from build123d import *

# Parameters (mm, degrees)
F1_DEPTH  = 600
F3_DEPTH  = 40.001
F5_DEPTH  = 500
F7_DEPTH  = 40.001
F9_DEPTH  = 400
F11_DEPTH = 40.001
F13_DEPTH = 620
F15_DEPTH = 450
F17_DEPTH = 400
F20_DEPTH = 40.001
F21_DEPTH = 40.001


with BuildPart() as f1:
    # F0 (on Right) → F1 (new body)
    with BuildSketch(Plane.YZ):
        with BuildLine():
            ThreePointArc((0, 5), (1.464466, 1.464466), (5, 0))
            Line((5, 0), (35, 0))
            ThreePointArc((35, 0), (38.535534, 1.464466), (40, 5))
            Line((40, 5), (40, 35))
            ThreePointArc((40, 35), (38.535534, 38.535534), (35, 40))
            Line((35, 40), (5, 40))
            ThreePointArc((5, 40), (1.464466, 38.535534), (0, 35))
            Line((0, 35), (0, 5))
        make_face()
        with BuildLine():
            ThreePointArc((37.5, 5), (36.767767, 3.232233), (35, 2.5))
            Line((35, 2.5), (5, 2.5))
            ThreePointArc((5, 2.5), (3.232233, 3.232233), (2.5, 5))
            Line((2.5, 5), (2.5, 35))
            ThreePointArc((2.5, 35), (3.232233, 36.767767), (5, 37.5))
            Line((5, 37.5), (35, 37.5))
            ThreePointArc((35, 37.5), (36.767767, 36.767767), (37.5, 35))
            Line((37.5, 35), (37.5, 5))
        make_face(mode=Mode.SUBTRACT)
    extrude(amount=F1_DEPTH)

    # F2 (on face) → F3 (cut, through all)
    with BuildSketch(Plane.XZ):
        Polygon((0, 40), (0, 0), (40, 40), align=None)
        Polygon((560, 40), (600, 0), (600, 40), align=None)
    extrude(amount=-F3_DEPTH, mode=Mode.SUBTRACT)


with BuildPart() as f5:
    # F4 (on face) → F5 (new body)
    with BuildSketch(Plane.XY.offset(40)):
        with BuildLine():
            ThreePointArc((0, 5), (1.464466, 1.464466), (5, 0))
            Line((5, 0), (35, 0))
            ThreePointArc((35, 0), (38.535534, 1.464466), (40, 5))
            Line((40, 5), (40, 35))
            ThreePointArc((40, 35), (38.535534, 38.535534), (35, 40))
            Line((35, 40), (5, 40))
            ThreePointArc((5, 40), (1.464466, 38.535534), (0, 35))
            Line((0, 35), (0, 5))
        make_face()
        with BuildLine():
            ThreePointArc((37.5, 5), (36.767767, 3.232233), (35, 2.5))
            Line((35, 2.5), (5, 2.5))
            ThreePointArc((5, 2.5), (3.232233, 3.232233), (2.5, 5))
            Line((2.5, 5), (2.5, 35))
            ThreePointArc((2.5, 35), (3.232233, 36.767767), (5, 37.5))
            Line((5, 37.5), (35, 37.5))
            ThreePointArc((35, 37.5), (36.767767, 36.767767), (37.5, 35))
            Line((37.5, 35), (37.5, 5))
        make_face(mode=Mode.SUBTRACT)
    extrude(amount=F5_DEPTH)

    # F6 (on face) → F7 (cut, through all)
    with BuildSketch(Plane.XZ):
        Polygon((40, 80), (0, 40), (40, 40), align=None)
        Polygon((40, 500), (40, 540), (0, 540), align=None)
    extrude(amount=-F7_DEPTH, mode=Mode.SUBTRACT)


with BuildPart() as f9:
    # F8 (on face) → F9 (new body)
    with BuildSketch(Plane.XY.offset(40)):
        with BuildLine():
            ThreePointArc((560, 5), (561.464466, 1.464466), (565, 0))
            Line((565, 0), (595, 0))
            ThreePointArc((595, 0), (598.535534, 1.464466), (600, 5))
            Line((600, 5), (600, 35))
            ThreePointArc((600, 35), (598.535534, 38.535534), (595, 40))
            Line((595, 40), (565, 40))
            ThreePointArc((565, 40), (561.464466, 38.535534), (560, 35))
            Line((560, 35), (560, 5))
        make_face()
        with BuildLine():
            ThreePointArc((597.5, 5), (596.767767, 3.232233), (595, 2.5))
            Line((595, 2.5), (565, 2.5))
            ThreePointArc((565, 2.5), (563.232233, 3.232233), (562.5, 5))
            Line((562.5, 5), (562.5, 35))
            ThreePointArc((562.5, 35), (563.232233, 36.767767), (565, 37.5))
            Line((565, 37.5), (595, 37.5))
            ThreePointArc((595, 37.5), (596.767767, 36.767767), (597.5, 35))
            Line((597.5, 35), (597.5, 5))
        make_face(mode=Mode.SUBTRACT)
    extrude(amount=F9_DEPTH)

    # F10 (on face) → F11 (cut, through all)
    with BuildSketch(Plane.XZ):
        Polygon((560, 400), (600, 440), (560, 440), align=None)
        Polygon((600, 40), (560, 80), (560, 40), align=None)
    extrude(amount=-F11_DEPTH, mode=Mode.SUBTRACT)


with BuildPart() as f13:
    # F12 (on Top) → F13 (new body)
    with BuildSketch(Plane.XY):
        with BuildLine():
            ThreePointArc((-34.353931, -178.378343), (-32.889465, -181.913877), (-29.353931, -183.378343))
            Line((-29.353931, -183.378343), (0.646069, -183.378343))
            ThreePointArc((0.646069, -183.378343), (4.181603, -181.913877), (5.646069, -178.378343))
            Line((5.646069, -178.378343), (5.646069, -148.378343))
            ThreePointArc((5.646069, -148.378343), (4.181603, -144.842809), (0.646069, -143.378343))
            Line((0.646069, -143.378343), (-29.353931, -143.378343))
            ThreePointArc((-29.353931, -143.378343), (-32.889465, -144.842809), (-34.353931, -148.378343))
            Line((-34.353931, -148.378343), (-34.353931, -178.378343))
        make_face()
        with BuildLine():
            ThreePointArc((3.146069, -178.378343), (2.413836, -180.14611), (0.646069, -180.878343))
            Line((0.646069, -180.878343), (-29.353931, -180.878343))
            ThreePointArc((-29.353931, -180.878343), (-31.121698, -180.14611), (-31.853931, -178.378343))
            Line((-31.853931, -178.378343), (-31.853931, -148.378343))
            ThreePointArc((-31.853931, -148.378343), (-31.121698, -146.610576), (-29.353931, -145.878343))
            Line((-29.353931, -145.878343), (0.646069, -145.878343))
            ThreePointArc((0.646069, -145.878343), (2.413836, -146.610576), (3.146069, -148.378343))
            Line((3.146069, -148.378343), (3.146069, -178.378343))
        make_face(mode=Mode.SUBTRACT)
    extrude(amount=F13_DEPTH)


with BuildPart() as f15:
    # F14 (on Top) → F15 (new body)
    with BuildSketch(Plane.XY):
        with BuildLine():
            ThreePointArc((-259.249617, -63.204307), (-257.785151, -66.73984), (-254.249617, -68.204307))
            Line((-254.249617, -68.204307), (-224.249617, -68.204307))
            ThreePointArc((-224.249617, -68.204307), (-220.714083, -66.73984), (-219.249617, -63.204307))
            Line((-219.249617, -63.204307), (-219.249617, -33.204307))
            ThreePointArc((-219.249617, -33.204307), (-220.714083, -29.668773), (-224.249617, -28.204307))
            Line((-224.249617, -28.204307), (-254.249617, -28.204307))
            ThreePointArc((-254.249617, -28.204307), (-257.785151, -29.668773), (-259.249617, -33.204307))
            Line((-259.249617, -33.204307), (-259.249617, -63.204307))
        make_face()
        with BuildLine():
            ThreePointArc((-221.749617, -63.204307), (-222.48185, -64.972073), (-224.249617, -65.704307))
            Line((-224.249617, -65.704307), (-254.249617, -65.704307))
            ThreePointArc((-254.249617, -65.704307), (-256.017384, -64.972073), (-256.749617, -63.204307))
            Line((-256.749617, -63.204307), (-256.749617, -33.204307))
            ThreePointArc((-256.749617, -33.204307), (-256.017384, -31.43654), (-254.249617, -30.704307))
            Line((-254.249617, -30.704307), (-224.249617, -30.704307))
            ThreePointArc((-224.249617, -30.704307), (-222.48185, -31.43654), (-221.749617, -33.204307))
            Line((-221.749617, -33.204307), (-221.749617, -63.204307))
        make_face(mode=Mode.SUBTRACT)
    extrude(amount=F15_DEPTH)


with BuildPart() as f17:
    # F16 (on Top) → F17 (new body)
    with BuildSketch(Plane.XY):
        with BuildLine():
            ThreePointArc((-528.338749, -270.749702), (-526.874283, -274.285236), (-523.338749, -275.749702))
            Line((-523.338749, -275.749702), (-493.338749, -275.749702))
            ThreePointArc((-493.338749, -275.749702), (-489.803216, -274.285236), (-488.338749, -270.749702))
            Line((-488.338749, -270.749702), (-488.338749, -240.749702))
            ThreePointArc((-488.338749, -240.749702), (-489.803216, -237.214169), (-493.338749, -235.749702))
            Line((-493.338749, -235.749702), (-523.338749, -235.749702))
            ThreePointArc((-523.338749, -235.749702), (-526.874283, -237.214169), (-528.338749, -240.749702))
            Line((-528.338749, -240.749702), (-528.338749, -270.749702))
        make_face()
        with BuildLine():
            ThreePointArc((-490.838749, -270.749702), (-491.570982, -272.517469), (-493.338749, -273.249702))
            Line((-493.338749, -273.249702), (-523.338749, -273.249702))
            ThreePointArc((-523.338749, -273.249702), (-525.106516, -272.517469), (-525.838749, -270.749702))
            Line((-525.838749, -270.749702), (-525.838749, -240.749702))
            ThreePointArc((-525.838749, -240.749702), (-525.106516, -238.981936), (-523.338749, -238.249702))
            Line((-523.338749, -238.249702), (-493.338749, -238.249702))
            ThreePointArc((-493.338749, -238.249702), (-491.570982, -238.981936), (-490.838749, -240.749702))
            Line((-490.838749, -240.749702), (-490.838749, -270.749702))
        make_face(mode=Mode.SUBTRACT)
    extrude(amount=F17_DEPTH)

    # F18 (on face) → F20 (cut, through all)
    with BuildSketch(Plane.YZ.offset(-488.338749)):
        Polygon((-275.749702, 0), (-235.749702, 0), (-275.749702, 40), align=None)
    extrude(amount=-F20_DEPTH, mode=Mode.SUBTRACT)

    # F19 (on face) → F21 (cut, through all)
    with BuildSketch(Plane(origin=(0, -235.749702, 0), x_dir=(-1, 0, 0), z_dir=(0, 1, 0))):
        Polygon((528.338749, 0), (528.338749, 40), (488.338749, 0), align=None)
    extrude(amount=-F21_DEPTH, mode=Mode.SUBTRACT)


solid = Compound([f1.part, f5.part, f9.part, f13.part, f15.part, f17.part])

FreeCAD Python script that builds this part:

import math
import FreeCAD as App
import Part
import Sketcher
from FreeCAD import Vector


def add_polygon(sketch, points):
    """Adds a closed chain of lines whose ends are joined by coincident constraints."""
    first, n = sketch.GeometryCount, len(points)
    for a, b in zip(points, points[1:] + points[:1]):
        sketch.addGeometry(Part.LineSegment(App.Vector(*a, 0), App.Vector(*b, 0)), False)
    for i in range(n):
        sketch.addConstraint(Sketcher.Constraint("Coincident", first + i, 2, first + (i + 1) % n, 1))

doc = App.newDocument("Part")
body = doc.addObject("PartDesign::Body", "Body")

# Sketch on YZ plane
sketch1 = doc.addObject("Sketcher::SketchObject", "Sketch")
body.addObject(sketch1)
sketch1.AttachmentSupport = (doc.YZ_Plane, [""])
sketch1.MapMode = "FlatFace"
sketch1.addGeometry(Part.ArcOfCircle(Part.Circle(Vector(5, 5, 0), Vector(0, 0, 1), 5), math.radians(179.999996), math.radians(270.000004)), False)
sketch1.addGeometry(Part.LineSegment(Vector(5, 0, 0), Vector(35, 0, 0)), False)
sketch1.addGeometry(Part.ArcOfCircle(Part.Circle(Vector(35, 5, 0), Vector(0, 0, 1), 5), math.radians(-90.000004), math.radians(0.000004)), False)
sketch1.addGeometry(Part.LineSegment(Vector(40, 5, 0), Vector(40, 35, 0)), False)
sketch1.addGeometry(Part.ArcOfCircle(Part.Circle(Vector(35, 35, 0), Vector(0, 0, 1), 5), math.radians(-0.000004), math.radians(90.000004)), False)
sketch1.addGeometry(Part.LineSegment(Vector(35, 40, 0), Vector(5, 40, 0)), False)
sketch1.addGeometry(Part.ArcOfCircle(Part.Circle(Vector(5, 35, 0), Vector(0, 0, 1), 5), math.radians(89.999996), math.radians(180.000004)), False)
sketch1.addGeometry(Part.LineSegment(Vector(0, 35, 0), Vector(0, 5, 0)), False)
sketch1.addGeometry(Part.LineSegment(Vector(37.5, 35, 0), Vector(37.5, 5, 0)), False)
sketch1.addGeometry(Part.ArcOfCircle(Part.Circle(Vector(35, 5, 0), Vector(0, 0, 1), 2.5), math.radians(-90.000004), math.radians(0.000004)), False)
sketch1.addGeometry(Part.LineSegment(Vector(35, 2.5, 0), Vector(5, 2.5, 0)), False)
sketch1.addGeometry(Part.ArcOfCircle(Part.Circle(Vector(5, 5, 0), Vector(0, 0, 1), 2.5), math.radians(179.999996), math.radians(270.000004)), False)
sketch1.addGeometry(Part.LineSegment(Vector(2.5, 5, 0), Vector(2.5, 35, 0)), False)
sketch1.addGeometry(Part.ArcOfCircle(Part.Circle(Vector(5, 35, 0), Vector(0, 0, 1), 2.5), math.radians(89.999996), math.radians(180.000004)), False)
sketch1.addGeometry(Part.LineSegment(Vector(5, 37.5, 0), Vector(35, 37.5, 0)), False)
sketch1.addGeometry(Part.ArcOfCircle(Part.Circle(Vector(35, 35, 0), Vector(0, 0, 1), 2.5), math.radians(-0.000004), math.radians(90.000004)), False)
sketch1.addConstraint(Sketcher.Constraint("Tangent", 0, 2, 1, 1))
sketch1.addConstraint(Sketcher.Constraint("Tangent", 1, 2, 2, 1))
sketch1.addConstraint(Sketcher.Constraint("Tangent", 2, 2, 3, 1))
sketch1.addConstraint(Sketcher.Constraint("Tangent", 3, 2, 4, 1))
sketch1.addConstraint(Sketcher.Constraint("Tangent", 4, 2, 5, 1))
sketch1.addConstraint(Sketcher.Constraint("Tangent", 5, 2, 6, 1))
sketch1.addConstraint(Sketcher.Constraint("Tangent", 6, 2, 7, 1))
sketch1.addConstraint(Sketcher.Constraint("Tangent", 7, 2, 0, 1))
sketch1.addConstraint(Sketcher.Constraint("Tangent", 8, 2, 9, 2))
sketch1.addConstraint(Sketcher.Constraint("Tangent", 9, 1, 10, 1))
sketch1.addConstraint(Sketcher.Constraint("Tangent", 10, 2, 11, 2))
sketch1.addConstraint(Sketcher.Constraint("Tangent", 11, 1, 12, 1))
sketch1.addConstraint(Sketcher.Constraint("Tangent", 12, 2, 13, 2))
sketch1.addConstraint(Sketcher.Constraint("Tangent", 13, 1, 14, 1))
sketch1.addConstraint(Sketcher.Constraint("Tangent", 14, 2, 15, 2))
sketch1.addConstraint(Sketcher.Constraint("Tangent", 15, 1, 8, 1))
sketch1.addConstraint(Sketcher.Constraint("Horizontal", 1))
sketch1.addConstraint(Sketcher.Constraint("Vertical", 3))
sketch1.addConstraint(Sketcher.Constraint("Horizontal", 5))
sketch1.addConstraint(Sketcher.Constraint("Vertical", 7))
sketch1.addConstraint(Sketcher.Constraint("Vertical", 8))
sketch1.addConstraint(Sketcher.Constraint("Horizontal", 10))
sketch1.addConstraint(Sketcher.Constraint("Vertical", 12))
sketch1.addConstraint(Sketcher.Constraint("Horizontal", 14))
sketch1.addConstraint(Sketcher.Constraint("Coincident", 9, 3, 2, 3))
sketch1.addConstraint(Sketcher.Constraint("Coincident", 11, 3, 0, 3))
sketch1.addConstraint(Sketcher.Constraint("Coincident", 13, 3, 6, 3))
sketch1.addConstraint(Sketcher.Constraint("Equal", 0, 2))
sketch1.addConstraint(Sketcher.Constraint("Equal", 2, 4))
sketch1.addConstraint(Sketcher.Constraint("Equal", 4, 6))
sketch1.addConstraint(Sketcher.Constraint("Equal", 13, 15))
sketch1.addConstraint(Sketcher.Constraint("PointOnObject", 0, 2, -1))
sketch1.addConstraint(Sketcher.Constraint("PointOnObject", 6, 2, -2))
sketch1.addConstraint(Sketcher.Constraint("Equal", 14, 3))
sketch1.addConstraint(Sketcher.Constraint("Radius", 0, 5.0))
sketch1.addConstraint(Sketcher.Constraint("Radius", 9, 2.5))
sketch1.addConstraint(Sketcher.Constraint("DistanceX", 1, 1, 1, 2, 30.0))
pad1 = doc.addObject("PartDesign::Pad", "Pad")
body.addObject(pad1)
pad1.Profile = sketch1
pad1.Length = 600

# Sketch on XZ plane
sketch2 = doc.addObject("Sketcher::SketchObject", "Sketch001")
body.addObject(sketch2)
sketch2.AttachmentSupport = (doc.XZ_Plane, [""])
sketch2.MapMode = "FlatFace"
add_polygon(sketch2, [(0, 40), (0, 0), (40, 40)])  # lines 0-2
add_polygon(sketch2, [(560, 40), (600, 0), (600, 40)])  # lines 3-5
sketch2.addConstraint(Sketcher.Constraint("Vertical", 0))
sketch2.addConstraint(Sketcher.Constraint("Horizontal", 2))
sketch2.addConstraint(Sketcher.Constraint("Vertical", 4))
sketch2.addConstraint(Sketcher.Constraint("Horizontal", 5))
sketch2.addConstraint(Sketcher.Constraint("Coincident", 0, 2, -1, 1))
sketch2.addConstraint(Sketcher.Constraint("PointOnObject", 3, 2, -1))
sketch2.addConstraint(Sketcher.Constraint("Perpendicular", 1, 3))
sketch2.addConstraint(Sketcher.Constraint("Horizontal", 2, 2, 4, 2))
sketch2.addConstraint(Sketcher.Constraint("Equal", 2, 5))
sketch2.addConstraint(Sketcher.Constraint("DistanceX", 2, 2, 2, 1, 40.0))
sketch2.addConstraint(Sketcher.Constraint("DistanceX", -1, 1, 3, 2, 600.0))
pocket1 = doc.addObject("PartDesign::Pocket", "Pocket")
body.addObject(pocket1)
pocket1.Profile = sketch2
pocket1.Type = "ThroughAll"
body2 = doc.addObject("PartDesign::Body", "Body001")

# Sketch on XY plane
sketch3 = doc.addObject("Sketcher::SketchObject", "Sketch002")
body2.addObject(sketch3)
sketch3.AttachmentSupport = (doc.getObject("XY_Plane001"), [""])
sketch3.MapMode = "FlatFace"
sketch3.AttachmentOffset = App.Placement(Vector(0, 0, 40), App.Rotation())
sketch3.addGeometry(Part.ArcOfCircle(Part.Circle(Vector(5, 5, 0), Vector(0, 0, 1), 5), math.radians(179.999996), math.radians(270.000004)), False)
sketch3.addGeometry(Part.LineSegment(Vector(5, 0, 0), Vector(35, 0, 0)), False)
sketch3.addGeometry(Part.ArcOfCircle(Part.Circle(Vector(35, 5, 0), Vector(0, 0, 1), 5), math.radians(-90.000004), math.radians(0.000004)), False)
sketch3.addGeometry(Part.LineSegment(Vector(40, 5, 0), Vector(40, 35, 0)), False)
sketch3.addGeometry(Part.ArcOfCircle(Part.Circle(Vector(35, 35, 0), Vector(0, 0, 1), 5), math.radians(-0.000004), math.radians(90.000004)), False)
sketch3.addGeometry(Part.LineSegment(Vector(35, 40, 0), Vector(5, 40, 0)), False)
sketch3.addGeometry(Part.ArcOfCircle(Part.Circle(Vector(5, 35, 0), Vector(0, 0, 1), 5), math.radians(89.999996), math.radians(180.000004)), False)
sketch3.addGeometry(Part.LineSegment(Vector(0, 35, 0), Vector(0, 5, 0)), False)
sketch3.addGeometry(Part.LineSegment(Vector(37.5, 35, 0), Vector(37.5, 5, 0)), False)
sketch3.addGeometry(Part.ArcOfCircle(Part.Circle(Vector(35, 5, 0), Vector(0, 0, 1), 2.5), math.radians(-90.000004), math.radians(0.000004)), False)
sketch3.addGeometry(Part.LineSegment(Vector(35, 2.5, 0), Vector(5, 2.5, 0)), False)
sketch3.addGeometry(Part.ArcOfCircle(Part.Circle(Vector(5, 5, 0), Vector(0, 0, 1), 2.5), math.radians(179.999996), math.radians(270.000004)), False)
sketch3.addGeometry(Part.LineSegment(Vector(2.5, 5, 0), Vector(2.5, 35, 0)), False)
sketch3.addGeometry(Part.ArcOfCircle(Part.Circle(Vector(5, 35, 0), Vector(0, 0, 1), 2.5), math.radians(89.999996), math.radians(180.000004)), False)
sketch3.addGeometry(Part.LineSegment(Vector(5, 37.5, 0), Vector(35, 37.5, 0)), False)
sketch3.addGeometry(Part.ArcOfCircle(Part.Circle(Vector(35, 35, 0), Vector(0, 0, 1), 2.5), math.radians(-0.000004), math.radians(90.000004)), False)
sketch3.addConstraint(Sketcher.Constraint("Tangent", 0, 2, 1, 1))
sketch3.addConstraint(Sketcher.Constraint("Tangent", 1, 2, 2, 1))
sketch3.addConstraint(Sketcher.Constraint("Tangent", 2, 2, 3, 1))
sketch3.addConstraint(Sketcher.Constraint("Tangent", 3, 2, 4, 1))
sketch3.addConstraint(Sketcher.Constraint("Tangent", 4, 2, 5, 1))
sketch3.addConstraint(Sketcher.Constraint("Tangent", 5, 2, 6, 1))
sketch3.addConstraint(Sketcher.Constraint("Tangent", 6, 2, 7, 1))
sketch3.addConstraint(Sketcher.Constraint("Tangent", 7, 2, 0, 1))
sketch3.addConstraint(Sketcher.Constraint("Tangent", 8, 2, 9, 2))
sketch3.addConstraint(Sketcher.Constraint("Tangent", 9, 1, 10, 1))
sketch3.addConstraint(Sketcher.Constraint("Tangent", 10, 2, 11, 2))
sketch3.addConstraint(Sketcher.Constraint("Tangent", 11, 1, 12, 1))
sketch3.addConstraint(Sketcher.Constraint("Tangent", 12, 2, 13, 2))
sketch3.addConstraint(Sketcher.Constraint("Tangent", 13, 1, 14, 1))
sketch3.addConstraint(Sketcher.Constraint("Tangent", 14, 2, 15, 2))
sketch3.addConstraint(Sketcher.Constraint("Tangent", 15, 1, 8, 1))
sketch3.addConstraint(Sketcher.Constraint("Horizontal", 1))
sketch3.addConstraint(Sketcher.Constraint("Vertical", 3))
sketch3.addConstraint(Sketcher.Constraint("Horizontal", 5))
sketch3.addConstraint(Sketcher.Constraint("Vertical", 7))
sketch3.addConstraint(Sketcher.Constraint("Vertical", 8))
sketch3.addConstraint(Sketcher.Constraint("Horizontal", 10))
sketch3.addConstraint(Sketcher.Constraint("Vertical", 12))
sketch3.addConstraint(Sketcher.Constraint("Horizontal", 14))
sketch3.addConstraint(Sketcher.Constraint("Coincident", 9, 3, 2, 3))
sketch3.addConstraint(Sketcher.Constraint("Coincident", 11, 3, 0, 3))
sketch3.addConstraint(Sketcher.Constraint("Coincident", 13, 3, 6, 3))
sketch3.addConstraint(Sketcher.Constraint("Equal", 0, 2))
sketch3.addConstraint(Sketcher.Constraint("Equal", 2, 4))
sketch3.addConstraint(Sketcher.Constraint("Equal", 4, 6))
sketch3.addConstraint(Sketcher.Constraint("Equal", 13, 15))
sketch3.addConstraint(Sketcher.Constraint("PointOnObject", 0, 2, -1))
sketch3.addConstraint(Sketcher.Constraint("PointOnObject", 6, 2, -2))
sketch3.addConstraint(Sketcher.Constraint("Equal", 14, 3))
sketch3.addConstraint(Sketcher.Constraint("Radius", 0, 5.0))
sketch3.addConstraint(Sketcher.Constraint("Radius", 9, 2.5))
sketch3.addConstraint(Sketcher.Constraint("DistanceX", 1, 1, 1, 2, 30.0))
pad2 = doc.addObject("PartDesign::Pad", "Pad001")
body2.addObject(pad2)
pad2.Profile = sketch3
pad2.Length = 500

# Sketch on XZ plane
sketch4 = doc.addObject("Sketcher::SketchObject", "Sketch003")
body2.addObject(sketch4)
sketch4.AttachmentSupport = (doc.getObject("XZ_Plane001"), [""])
sketch4.MapMode = "FlatFace"
add_polygon(sketch4, [(40, 80), (0, 40), (40, 40)])  # lines 0-2
add_polygon(sketch4, [(40, 500), (40, 540), (0, 540)])  # lines 3-5
sketch4.addConstraint(Sketcher.Constraint("Horizontal", 1))
sketch4.addConstraint(Sketcher.Constraint("Vertical", 2))
sketch4.addConstraint(Sketcher.Constraint("Vertical", 3))
sketch4.addConstraint(Sketcher.Constraint("Horizontal", 4))
sketch4.addConstraint(Sketcher.Constraint("PointOnObject", 0, 2, -2))
sketch4.addConstraint(Sketcher.Constraint("PointOnObject", 4, 2, -2))
sketch4.addConstraint(Sketcher.Constraint("Perpendicular", 0, 5))
sketch4.addConstraint(Sketcher.Constraint("Vertical", 2, 2, 3, 2))
sketch4.addConstraint(Sketcher.Constraint("Equal", 4, 2))
sketch4.addConstraint(Sketcher.Constraint("DistanceX", 1, 1, 1, 2, 40.0))
sketch4.addConstraint(Sketcher.Constraint("DistanceY", -1, 1, 0, 2, 40.0))
sketch4.addConstraint(Sketcher.Constraint("DistanceY", -1, 1, 3, 2, 540.0))
pocket2 = doc.addObject("PartDesign::Pocket", "Pocket001")
body2.addObject(pocket2)
pocket2.Profile = sketch4
pocket2.Type = "ThroughAll"
body3 = doc.addObject("PartDesign::Body", "Body002")

# Sketch on XY plane
sketch5 = doc.addObject("Sketcher::SketchObject", "Sketch004")
body3.addObject(sketch5)
sketch5.AttachmentSupport = (doc.getObject("XY_Plane002"), [""])
sketch5.MapMode = "FlatFace"
sketch5.AttachmentOffset = App.Placement(Vector(0, 0, 40), App.Rotation())
sketch5.addGeometry(Part.ArcOfCircle(Part.Circle(Vector(565, 5, 0), Vector(0, 0, 1), 5), math.radians(179.999996), math.radians(270.000004)), False)
sketch5.addGeometry(Part.LineSegment(Vector(565, 0, 0), Vector(595, 0, 0)), False)
sketch5.addGeometry(Part.ArcOfCircle(Part.Circle(Vector(595, 5, 0), Vector(0, 0, 1), 5), math.radians(-90.000004), math.radians(0.000004)), False)
sketch5.addGeometry(Part.LineSegment(Vector(600, 5, 0), Vector(600, 35, 0)), False)
sketch5.addGeometry(Part.ArcOfCircle(Part.Circle(Vector(595, 35, 0), Vector(0, 0, 1), 5), math.radians(-0.000004), math.radians(90.000004)), False)
sketch5.addGeometry(Part.LineSegment(Vector(595, 40, 0), Vector(565, 40, 0)), False)
sketch5.addGeometry(Part.ArcOfCircle(Part.Circle(Vector(565, 35, 0), Vector(0, 0, 1), 5), math.radians(89.999996), math.radians(180.000004)), False)
sketch5.addGeometry(Part.LineSegment(Vector(560, 35, 0), Vector(560, 5, 0)), False)
sketch5.addGeometry(Part.LineSegment(Vector(597.5, 35, 0), Vector(597.5, 5, 0)), False)
sketch5.addGeometry(Part.ArcOfCircle(Part.Circle(Vector(595, 5, 0), Vector(0, 0, 1), 2.5), math.radians(-90.000004), math.radians(0.000004)), False)
sketch5.addGeometry(Part.LineSegment(Vector(595, 2.5, 0), Vector(565, 2.5, 0)), False)
sketch5.addGeometry(Part.ArcOfCircle(Part.Circle(Vector(565, 5, 0), Vector(0, 0, 1), 2.5), math.radians(179.999996), math.radians(270.000004)), False)
sketch5.addGeometry(Part.LineSegment(Vector(562.5, 5, 0), Vector(562.5, 35, 0)), False)
sketch5.addGeometry(Part.ArcOfCircle(Part.Circle(Vector(565, 35, 0), Vector(0, 0, 1), 2.5), math.radians(89.999996), math.radians(180.000004)), False)
sketch5.addGeometry(Part.LineSegment(Vector(565, 37.5, 0), Vector(595, 37.5, 0)), False)
sketch5.addGeometry(Part.ArcOfCircle(Part.Circle(Vector(595, 35, 0), Vector(0, 0, 1), 2.5), math.radians(-0.000004), math.radians(90.000004)), False)
sketch5.addConstraint(Sketcher.Constraint("Tangent", 0, 2, 1, 1))
sketch5.addConstraint(Sketcher.Constraint("Tangent", 1, 2, 2, 1))
sketch5.addConstraint(Sketcher.Constraint("Tangent", 2, 2, 3, 1))
sketch5.addConstraint(Sketcher.Constraint("Tangent", 3, 2, 4, 1))
sketch5.addConstraint(Sketcher.Constraint("Tangent", 4, 2, 5, 1))
sketch5.addConstraint(Sketcher.Constraint("Tangent", 5, 2, 6, 1))
sketch5.addConstraint(Sketcher.Constraint("Tangent", 6, 2, 7, 1))
sketch5.addConstraint(Sketcher.Constraint("Tangent", 7, 2, 0, 1))
sketch5.addConstraint(Sketcher.Constraint("Tangent", 8, 2, 9, 2))
sketch5.addConstraint(Sketcher.Constraint("Tangent", 9, 1, 10, 1))
sketch5.addConstraint(Sketcher.Constraint("Tangent", 10, 2, 11, 2))
sketch5.addConstraint(Sketcher.Constraint("Tangent", 11, 1, 12, 1))
sketch5.addConstraint(Sketcher.Constraint("Tangent", 12, 2, 13, 2))
sketch5.addConstraint(Sketcher.Constraint("Tangent", 13, 1, 14, 1))
sketch5.addConstraint(Sketcher.Constraint("Tangent", 14, 2, 15, 2))
sketch5.addConstraint(Sketcher.Constraint("Tangent", 15, 1, 8, 1))
sketch5.addConstraint(Sketcher.Constraint("Horizontal", 1))
sketch5.addConstraint(Sketcher.Constraint("Vertical", 3))
sketch5.addConstraint(Sketcher.Constraint("Horizontal", 5))
sketch5.addConstraint(Sketcher.Constraint("Vertical", 7))
sketch5.addConstraint(Sketcher.Constraint("Vertical", 8))
sketch5.addConstraint(Sketcher.Constraint("Horizontal", 10))
sketch5.addConstraint(Sketcher.Constraint("Vertical", 12))
sketch5.addConstraint(Sketcher.Constraint("Horizontal", 14))
sketch5.addConstraint(Sketcher.Constraint("Coincident", 9, 3, 2, 3))
sketch5.addConstraint(Sketcher.Constraint("Coincident", 11, 3, 0, 3))
sketch5.addConstraint(Sketcher.Constraint("Coincident", 13, 3, 6, 3))
sketch5.addConstraint(Sketcher.Constraint("Equal", 0, 2))
sketch5.addConstraint(Sketcher.Constraint("Equal", 2, 4))
sketch5.addConstraint(Sketcher.Constraint("Equal", 4, 6))
sketch5.addConstraint(Sketcher.Constraint("Equal", 13, 15))
sketch5.addConstraint(Sketcher.Constraint("PointOnObject", 0, 2, -1))
sketch5.addConstraint(Sketcher.Constraint("Equal", 14, 3))
sketch5.addConstraint(Sketcher.Constraint("Radius", 0, 5.0))
sketch5.addConstraint(Sketcher.Constraint("Radius", 9, 2.5))
sketch5.addConstraint(Sketcher.Constraint("DistanceX", 1, 1, 1, 2, 30.0))
sketch5.addConstraint(Sketcher.Constraint("DistanceX", -1, 1, 0, 3, 565.0))
pad3 = doc.addObject("PartDesign::Pad", "Pad002")
body3.addObject(pad3)
pad3.Profile = sketch5
pad3.Length = 400

# Sketch on XZ plane
sketch6 = doc.addObject("Sketcher::SketchObject", "Sketch005")
body3.addObject(sketch6)
sketch6.AttachmentSupport = (doc.getObject("XZ_Plane002"), [""])
sketch6.MapMode = "FlatFace"
add_polygon(sketch6, [(560, 400), (600, 440), (560, 440)])  # lines 0-2
add_polygon(sketch6, [(600, 40), (560, 80), (560, 40)])  # lines 3-5
sketch6.addConstraint(Sketcher.Constraint("Horizontal", 1))
sketch6.addConstraint(Sketcher.Constraint("Vertical", 2))
sketch6.addConstraint(Sketcher.Constraint("Vertical", 4))
sketch6.addConstraint(Sketcher.Constraint("Horizontal", 5))
sketch6.addConstraint(Sketcher.Constraint("Perpendicular", 0, 3))
sketch6.addConstraint(Sketcher.Constraint("Vertical", 2, 2, 3, 2))
sketch6.addConstraint(Sketcher.Constraint("Vertical", 0, 2, 5, 2))
sketch6.addConstraint(Sketcher.Constraint("Equal", 5, 2))
sketch6.addConstraint(Sketcher.Constraint("DistanceX", 1, 2, 1, 1, 40.0))
sketch6.addConstraint(Sketcher.Constraint("DistanceX", -1, 1, 0, 2, 600.0))
sketch6.addConstraint(Sketcher.Constraint("DistanceY", -1, 1, 0, 2, 440.0))
sketch6.addConstraint(Sketcher.Constraint("DistanceY", -1, 1, 3, 2, 80.0))
pocket3 = doc.addObject("PartDesign::Pocket", "Pocket002")
body3.addObject(pocket3)
pocket3.Profile = sketch6
pocket3.Type = "ThroughAll"
body4 = doc.addObject("PartDesign::Body", "Body003")

# Sketch on XY plane
sketch7 = doc.addObject("Sketcher::SketchObject", "Sketch006")
body4.addObject(sketch7)
sketch7.AttachmentSupport = (doc.getObject("XY_Plane003"), [""])
sketch7.MapMode = "FlatFace"
sketch7.addGeometry(Part.ArcOfCircle(Part.Circle(Vector(-29.353931, -178.378343, 0), Vector(0, 0, 1), 5), math.radians(179.999996), math.radians(270.000004)), False)
sketch7.addGeometry(Part.LineSegment(Vector(-29.353931, -183.378343, 0), Vector(0.646069, -183.378343, 0)), False)
sketch7.addGeometry(Part.ArcOfCircle(Part.Circle(Vector(0.646069, -178.378343, 0), Vector(0, 0, 1), 5), math.radians(-90.000004), math.radians(0.000004)), False)
sketch7.addGeometry(Part.LineSegment(Vector(5.646069, -178.378343, 0), Vector(5.646069, -148.378343, 0)), False)
sketch7.addGeometry(Part.ArcOfCircle(Part.Circle(Vector(0.646069, -148.378343, 0), Vector(0, 0, 1), 5), math.radians(-0.000004), math.radians(90.000004)), False)
sketch7.addGeometry(Part.LineSegment(Vector(0.646069, -143.378343, 0), Vector(-29.353931, -143.378343, 0)), False)
sketch7.addGeometry(Part.ArcOfCircle(Part.Circle(Vector(-29.353931, -148.378343, 0), Vector(0, 0, 1), 5), math.radians(89.999996), math.radians(180.000004)), False)
sketch7.addGeometry(Part.LineSegment(Vector(-34.353931, -148.378343, 0), Vector(-34.353931, -178.378343, 0)), False)
sketch7.addGeometry(Part.LineSegment(Vector(3.146069, -148.378343, 0), Vector(3.146069, -178.378343, 0)), False)
sketch7.addGeometry(Part.ArcOfCircle(Part.Circle(Vector(0.646069, -178.378343, 0), Vector(0, 0, 1), 2.5), math.radians(-90.000004), math.radians(0.000004)), False)
sketch7.addGeometry(Part.LineSegment(Vector(0.646069, -180.878343, 0), Vector(-29.353931, -180.878343, 0)), False)
sketch7.addGeometry(Part.ArcOfCircle(Part.Circle(Vector(-29.353931, -178.378343, 0), Vector(0, 0, 1), 2.5), math.radians(179.999996), math.radians(270.000004)), False)
sketch7.addGeometry(Part.LineSegment(Vector(-31.853931, -178.378343, 0), Vector(-31.853931, -148.378343, 0)), False)
sketch7.addGeometry(Part.ArcOfCircle(Part.Circle(Vector(-29.353931, -148.378343, 0), Vector(0, 0, 1), 2.5), math.radians(89.999996), math.radians(180.000004)), False)
sketch7.addGeometry(Part.LineSegment(Vector(-29.353931, -145.878343, 0), Vector(0.646069, -145.878343, 0)), False)
sketch7.addGeometry(Part.ArcOfCircle(Part.Circle(Vector(0.646069, -148.378343, 0), Vector(0, 0, 1), 2.5), math.radians(-0.000004), math.radians(90.000004)), False)
sketch7.addConstraint(Sketcher.Constraint("Tangent", 0, 2, 1, 1))
sketch7.addConstraint(Sketcher.Constraint("Tangent", 1, 2, 2, 1))
sketch7.addConstraint(Sketcher.Constraint("Tangent", 2, 2, 3, 1))
sketch7.addConstraint(Sketcher.Constraint("Tangent", 3, 2, 4, 1))
sketch7.addConstraint(Sketcher.Constraint("Tangent", 4, 2, 5, 1))
sketch7.addConstraint(Sketcher.Constraint("Tangent", 5, 2, 6, 1))
sketch7.addConstraint(Sketcher.Constraint("Tangent", 6, 2, 7, 1))
sketch7.addConstraint(Sketcher.Constraint("Tangent", 7, 2, 0, 1))
sketch7.addConstraint(Sketcher.Constraint("Tangent", 8, 2, 9, 2))
sketch7.addConstraint(Sketcher.Constraint("Tangent", 9, 1, 10, 1))
sketch7.addConstraint(Sketcher.Constraint("Tangent", 10, 2, 11, 2))
sketch7.addConstraint(Sketcher.Constraint("Tangent", 11, 1, 12, 1))
sketch7.addConstraint(Sketcher.Constraint("Tangent", 12, 2, 13, 2))
sketch7.addConstraint(Sketcher.Constraint("Tangent", 13, 1, 14, 1))
sketch7.addConstraint(Sketcher.Constraint("Tangent", 14, 2, 15, 2))
sketch7.addConstraint(Sketcher.Constraint("Tangent", 15, 1, 8, 1))
sketch7.addConstraint(Sketcher.Constraint("Horizontal", 1))
sketch7.addConstraint(Sketcher.Constraint("Vertical", 3))
sketch7.addConstraint(Sketcher.Constraint("Horizontal", 5))
sketch7.addConstraint(Sketcher.Constraint("Vertical", 7))
sketch7.addConstraint(Sketcher.Constraint("Vertical", 8))
sketch7.addConstraint(Sketcher.Constraint("Horizontal", 10))
sketch7.addConstraint(Sketcher.Constraint("Vertical", 12))
sketch7.addConstraint(Sketcher.Constraint("Horizontal", 14))
sketch7.addConstraint(Sketcher.Constraint("Coincident", 9, 3, 2, 3))
sketch7.addConstraint(Sketcher.Constraint("Coincident", 11, 3, 0, 3))
sketch7.addConstraint(Sketcher.Constraint("Coincident", 13, 3, 6, 3))
sketch7.addConstraint(Sketcher.Constraint("Equal", 0, 2))
sketch7.addConstraint(Sketcher.Constraint("Equal", 2, 4))
sketch7.addConstraint(Sketcher.Constraint("Equal", 4, 6))
sketch7.addConstraint(Sketcher.Constraint("Equal", 13, 15))
sketch7.addConstraint(Sketcher.Constraint("Equal", 14, 3))
sketch7.addConstraint(Sketcher.Constraint("Radius", 0, 5.0))
sketch7.addConstraint(Sketcher.Constraint("Radius", 9, 2.5))
sketch7.addConstraint(Sketcher.Constraint("DistanceX", 1, 1, 1, 2, 30.0))
sketch7.addConstraint(Sketcher.Constraint("DistanceX", 0, 3, -1, 1, 29.353931))
sketch7.addConstraint(Sketcher.Constraint("DistanceY", 0, 3, -1, 1, 178.378343))
pad4 = doc.addObject("PartDesign::Pad", "Pad003")
body4.addObject(pad4)
pad4.Profile = sketch7
pad4.Length = 620
body5 = doc.addObject("PartDesign::Body", "Body004")

# Sketch on XY plane
sketch8 = doc.addObject("Sketcher::SketchObject", "Sketch007")
body5.addObject(sketch8)
sketch8.AttachmentSupport = (doc.getObject("XY_Plane004"), [""])
sketch8.MapMode = "FlatFace"
sketch8.addGeometry(Part.ArcOfCircle(Part.Circle(Vector(-254.249616, -63.204306, 0), Vector(0, 0, 1), 5.000001), math.radians(-179.999984), math.radians(-90.000016)), False)
sketch8.addGeometry(Part.LineSegment(Vector(-254.249617, -68.204307, 0), Vector(-224.249617, -68.204307, 0)), False)
sketch8.addGeometry(Part.ArcOfCircle(Part.Circle(Vector(-224.249618, -63.204306, 0), Vector(0, 0, 1), 5.000001), math.radians(-89.999984), math.radians(-0.000016)), False)
sketch8.addGeometry(Part.LineSegment(Vector(-219.249617, -63.204307, 0), Vector(-219.249617, -33.204307, 0)), False)
sketch8.addGeometry(Part.ArcOfCircle(Part.Circle(Vector(-224.249617, -33.204307, 0), Vector(0, 0, 1), 5), math.radians(-0.000004), math.radians(90.000004)), False)
sketch8.addGeometry(Part.LineSegment(Vector(-224.249617, -28.204307, 0), Vector(-254.249617, -28.204307, 0)), False)
sketch8.addGeometry(Part.ArcOfCircle(Part.Circle(Vector(-254.249617, -33.204307, 0), Vector(0, 0, 1), 5), math.radians(89.999996), math.radians(180.000004)), False)
sketch8.addGeometry(Part.LineSegment(Vector(-259.249617, -33.204307, 0), Vector(-259.249617, -63.204307, 0)), False)
sketch8.addGeometry(Part.LineSegment(Vector(-221.749617, -33.204307, 0), Vector(-221.749617, -63.204307, 0)), False)
sketch8.addGeometry(Part.ArcOfCircle(Part.Circle(Vector(-224.249619, -63.204305, 0), Vector(0, 0, 1), 2.500002), math.radians(-89.999965), math.radians(-0.000035)), False)
sketch8.addGeometry(Part.LineSegment(Vector(-224.249617, -65.704307, 0), Vector(-254.249617, -65.704307, 0)), False)
sketch8.addGeometry(Part.ArcOfCircle(Part.Circle(Vector(-254.249615, -63.204305, 0), Vector(0, 0, 1), 2.500002), math.radians(-179.999965), math.radians(-90.000035)), False)
sketch8.addGeometry(Part.LineSegment(Vector(-256.749617, -63.204307, 0), Vector(-256.749617, -33.204307, 0)), False)
sketch8.addGeometry(Part.ArcOfCircle(Part.Circle(Vector(-254.249617, -33.204307, 0), Vector(0, 0, 1), 2.5), math.radians(89.999996), math.radians(180.000004)), False)
sketch8.addGeometry(Part.LineSegment(Vector(-254.249617, -30.704307, 0), Vector(-224.249617, -30.704307, 0)), False)
sketch8.addGeometry(Part.ArcOfCircle(Part.Circle(Vector(-224.249617, -33.204307, 0), Vector(0, 0, 1), 2.5), math.radians(-0.000004), math.radians(90.000004)), False)
sketch8.addConstraint(Sketcher.Constraint("Tangent", 0, 2, 1, 1))
sketch8.addConstraint(Sketcher.Constraint("Tangent", 1, 2, 2, 1))
sketch8.addConstraint(Sketcher.Constraint("Tangent", 2, 2, 3, 1))
sketch8.addConstraint(Sketcher.Constraint("Tangent", 3, 2, 4, 1))
sketch8.addConstraint(Sketcher.Constraint("Tangent", 4, 2, 5, 1))
sketch8.addConstraint(Sketcher.Constraint("Tangent", 5, 2, 6, 1))
sketch8.addConstraint(Sketcher.Constraint("Tangent", 6, 2, 7, 1))
sketch8.addConstraint(Sketcher.Constraint("Tangent", 7, 2, 0, 1))
sketch8.addConstraint(Sketcher.Constraint("Tangent", 8, 2, 9, 2))
sketch8.addConstraint(Sketcher.Constraint("Tangent", 9, 1, 10, 1))
sketch8.addConstraint(Sketcher.Constraint("Tangent", 10, 2, 11, 2))
sketch8.addConstraint(Sketcher.Constraint("Tangent", 11, 1, 12, 1))
sketch8.addConstraint(Sketcher.Constraint("Tangent", 12, 2, 13, 2))
sketch8.addConstraint(Sketcher.Constraint("Tangent", 13, 1, 14, 1))
sketch8.addConstraint(Sketcher.Constraint("Tangent", 14, 2, 15, 2))
sketch8.addConstraint(Sketcher.Constraint("Tangent", 15, 1, 8, 1))
sketch8.addConstraint(Sketcher.Constraint("Horizontal", 1))
sketch8.addConstraint(Sketcher.Constraint("Vertical", 3))
sketch8.addConstraint(Sketcher.Constraint("Horizontal", 5))
sketch8.addConstraint(Sketcher.Constraint("Vertical", 7))
sketch8.addConstraint(Sketcher.Constraint("Vertical", 8))
sketch8.addConstraint(Sketcher.Constraint("Horizontal", 10))
sketch8.addConstraint(Sketcher.Constraint("Vertical", 12))
sketch8.addConstraint(Sketcher.Constraint("Horizontal", 14))
sketch8.addConstraint(Sketcher.Constraint("Coincident", 9, 3, 2, 3))
sketch8.addConstraint(Sketcher.Constraint("Coincident", 11, 3, 0, 3))
sketch8.addConstraint(Sketcher.Constraint("Coincident", 13, 3, 6, 3))
sketch8.addConstraint(Sketcher.Constraint("Equal", 0, 2))
sketch8.addConstraint(Sketcher.Constraint("Equal", 2, 4))
sketch8.addConstraint(Sketcher.Constraint("Equal", 4, 6))
sketch8.addConstraint(Sketcher.Constraint("Equal", 13, 15))
sketch8.addConstraint(Sketcher.Constraint("Equal", 14, 3))
sketch8.addConstraint(Sketcher.Constraint("Radius", 0, 5.000001))
sketch8.addConstraint(Sketcher.Constraint("Radius", 9, 2.500002))
sketch8.addConstraint(Sketcher.Constraint("DistanceX", 1, 1, 1, 2, 30.0))
sketch8.addConstraint(Sketcher.Constraint("DistanceX", 2, 3, -1, 1, 224.249618))
sketch8.addConstraint(Sketcher.Constraint("DistanceY", 0, 3, -1, 1, 63.204306))
pad5 = doc.addObject("PartDesign::Pad", "Pad004")
body5.addObject(pad5)
pad5.Profile = sketch8
pad5.Length = 450
body6 = doc.addObject("PartDesign::Body", "Body005")

# Sketch on XY plane
sketch9 = doc.addObject("Sketcher::SketchObject", "Sketch008")
body6.addObject(sketch9)
sketch9.AttachmentSupport = (doc.getObject("XY_Plane005"), [""])
sketch9.MapMode = "FlatFace"
sketch9.addGeometry(Part.ArcOfCircle(Part.Circle(Vector(-523.338749, -270.749702, 0), Vector(0, 0, 1), 5), math.radians(179.999996), math.radians(270.000004)), False)
sketch9.addGeometry(Part.LineSegment(Vector(-523.338749, -275.749702, 0), Vector(-493.338749, -275.749702, 0)), False)
sketch9.addGeometry(Part.ArcOfCircle(Part.Circle(Vector(-493.33875, -270.749701, 0), Vector(0, 0, 1), 5.000001), math.radians(-89.999984), math.radians(-0.000016)), False)
sketch9.addGeometry(Part.LineSegment(Vector(-488.338749, -270.749702, 0), Vector(-488.338749, -240.749702, 0)), False)
sketch9.addGeometry(Part.ArcOfCircle(Part.Circle(Vector(-493.338752, -240.749705, 0), Vector(0, 0, 1), 5.000003), math.radians(0.000035), math.radians(89.999965)), False)
sketch9.addGeometry(Part.LineSegment(Vector(-493.338749, -235.749702, 0), Vector(-523.338749, -235.749702, 0)), False)
sketch9.addGeometry(Part.ArcOfCircle(Part.Circle(Vector(-523.338748, -240.749703, 0), Vector(0, 0, 1), 5.000001), math.radians(90.000016), math.radians(179.999984)), False)
sketch9.addGeometry(Part.LineSegment(Vector(-528.338749, -240.749702, 0), Vector(-528.338749, -270.749702, 0)), False)
sketch9.addGeometry(Part.LineSegment(Vector(-490.838749, -240.749702, 0), Vector(-490.838749, -270.749702, 0)), False)
sketch9.addGeometry(Part.ArcOfCircle(Part.Circle(Vector(-493.338749, -270.749702, 0), Vector(0, 0, 1), 2.5), math.radians(-90.000004), math.radians(0.000004)), False)
sketch9.addGeometry(Part.LineSegment(Vector(-493.338749, -273.249702, 0), Vector(-523.338749, -273.249702, 0)), False)
sketch9.addGeometry(Part.ArcOfCircle(Part.Circle(Vector(-523.338749, -270.749702, 0), Vector(0, 0, 1), 2.5), math.radians(179.999996), math.radians(270.000004)), False)
sketch9.addGeometry(Part.LineSegment(Vector(-525.838749, -270.749702, 0), Vector(-525.838749, -240.749702, 0)), False)
sketch9.addGeometry(Part.ArcOfCircle(Part.Circle(Vector(-523.338747, -240.749704, 0), Vector(0, 0, 1), 2.500002), math.radians(90.000035), math.radians(179.999965)), False)
sketch9.addGeometry(Part.LineSegment(Vector(-523.338749, -238.249702, 0), Vector(-493.338749, -238.249702, 0)), False)
sketch9.addGeometry(Part.ArcOfCircle(Part.Circle(Vector(-493.338751, -240.749704, 0), Vector(0, 0, 1), 2.500002), math.radians(0.000035), math.radians(89.999965)), False)
sketch9.addConstraint(Sketcher.Constraint("Tangent", 0, 2, 1, 1))
sketch9.addConstraint(Sketcher.Constraint("Tangent", 1, 2, 2, 1))
sketch9.addConstraint(Sketcher.Constraint("Tangent", 2, 2, 3, 1))
sketch9.addConstraint(Sketcher.Constraint("Tangent", 3, 2, 4, 1))
sketch9.addConstraint(Sketcher.Constraint("Tangent", 4, 2, 5, 1))
sketch9.addConstraint(Sketcher.Constraint("Tangent", 5, 2, 6, 1))
sketch9.addConstraint(Sketcher.Constraint("Tangent", 6, 2, 7, 1))
sketch9.addConstraint(Sketcher.Constraint("Tangent", 7, 2, 0, 1))
sketch9.addConstraint(Sketcher.Constraint("Tangent", 8, 2, 9, 2))
sketch9.addConstraint(Sketcher.Constraint("Tangent", 9, 1, 10, 1))
sketch9.addConstraint(Sketcher.Constraint("Tangent", 10, 2, 11, 2))
sketch9.addConstraint(Sketcher.Constraint("Tangent", 11, 1, 12, 1))
sketch9.addConstraint(Sketcher.Constraint("Tangent", 12, 2, 13, 2))
sketch9.addConstraint(Sketcher.Constraint("Tangent", 13, 1, 14, 1))
sketch9.addConstraint(Sketcher.Constraint("Tangent", 14, 2, 15, 2))
sketch9.addConstraint(Sketcher.Constraint("Tangent", 15, 1, 8, 1))
sketch9.addConstraint(Sketcher.Constraint("Horizontal", 1))
sketch9.addConstraint(Sketcher.Constraint("Vertical", 3))
sketch9.addConstraint(Sketcher.Constraint("Horizontal", 5))
sketch9.addConstraint(Sketcher.Constraint("Vertical", 7))
sketch9.addConstraint(Sketcher.Constraint("Vertical", 8))
sketch9.addConstraint(Sketcher.Constraint("Horizontal", 10))
sketch9.addConstraint(Sketcher.Constraint("Vertical", 12))
sketch9.addConstraint(Sketcher.Constraint("Horizontal", 14))
sketch9.addConstraint(Sketcher.Constraint("Coincident", 9, 3, 2, 3))
sketch9.addConstraint(Sketcher.Constraint("Coincident", 11, 3, 0, 3))
sketch9.addConstraint(Sketcher.Constraint("Coincident", 13, 3, 6, 3))
sketch9.addConstraint(Sketcher.Constraint("Equal", 0, 2))
sketch9.addConstraint(Sketcher.Constraint("Equal", 2, 4))
sketch9.addConstraint(Sketcher.Constraint("Equal", 4, 6))
sketch9.addConstraint(Sketcher.Constraint("Equal", 13, 15))
sketch9.addConstraint(Sketcher.Constraint("Equal", 14, 3))
sketch9.addConstraint(Sketcher.Constraint("Radius", 0, 5.0))
sketch9.addConstraint(Sketcher.Constraint("Radius", 9, 2.5))
sketch9.addConstraint(Sketcher.Constraint("DistanceX", 1, 1, 1, 2, 30.0))
sketch9.addConstraint(Sketcher.Constraint("DistanceY", 2, 3, -1, 1, 270.749701))
sketch9.addConstraint(Sketcher.Constraint("DistanceX", 0, 3, -1, 1, 523.338749))
pad6 = doc.addObject("PartDesign::Pad", "Pad005")
body6.addObject(pad6)
pad6.Profile = sketch9
pad6.Length = 400

# Sketch on YZ plane
sketch10 = doc.addObject("Sketcher::SketchObject", "Sketch009")
body6.addObject(sketch10)
sketch10.AttachmentSupport = (doc.getObject("YZ_Plane005"), [""])
sketch10.MapMode = "FlatFace"
sketch10.AttachmentOffset = App.Placement(Vector(0, 0, -488.338749), App.Rotation())
add_polygon(sketch10, [(-275.749702, 0), (-235.749702, 0), (-275.749702, 40)])  # lines 0-2
sketch10.addConstraint(Sketcher.Constraint("Horizontal", 0))
sketch10.addConstraint(Sketcher.Constraint("Vertical", 2))
sketch10.addConstraint(Sketcher.Constraint("PointOnObject", 0, 2, -1))
sketch10.addConstraint(Sketcher.Constraint("Equal", 0, 2))
sketch10.addConstraint(Sketcher.Constraint("DistanceX", 0, 1, 0, 2, 40.0))
sketch10.addConstraint(Sketcher.Constraint("DistanceX", 1, 2, -1, 1, 275.749702))
pocket4 = doc.addObject("PartDesign::Pocket", "Pocket003")
body6.addObject(pocket4)
pocket4.Profile = sketch10
pocket4.Type = "ThroughAll"

# Sketch on XZ plane
sketch11 = doc.addObject("Sketcher::SketchObject", "Sketch010")
body6.addObject(sketch11)
sketch11.AttachmentSupport = (doc.getObject("XZ_Plane005"), [""])
sketch11.MapMode = "FlatFace"
sketch11.AttachmentOffset = App.Placement(Vector(0, 0, 235.749702), App.Rotation())
add_polygon(sketch11, [(-528.338749, 0), (-528.338749, 40), (-488.338749, 0)])  # lines 0-2
sketch11.addConstraint(Sketcher.Constraint("Vertical", 0))
sketch11.addConstraint(Sketcher.Constraint("Horizontal", 2))
sketch11.addConstraint(Sketcher.Constraint("PointOnObject", 1, 2, -1))
sketch11.addConstraint(Sketcher.Constraint("Equal", 2, 0))
sketch11.addConstraint(Sketcher.Constraint("DistanceX", 2, 2, 2, 1, 40.0))
sketch11.addConstraint(Sketcher.Constraint("DistanceX", 0, 2, -1, 1, 528.338749))
pocket5 = doc.addObject("PartDesign::Pocket", "Pocket004")
body6.addObject(pocket5)
pocket5.Profile = sketch11
pocket5.Type = "ThroughAll"
pocket5.Reversed = True

doc.recompute()
